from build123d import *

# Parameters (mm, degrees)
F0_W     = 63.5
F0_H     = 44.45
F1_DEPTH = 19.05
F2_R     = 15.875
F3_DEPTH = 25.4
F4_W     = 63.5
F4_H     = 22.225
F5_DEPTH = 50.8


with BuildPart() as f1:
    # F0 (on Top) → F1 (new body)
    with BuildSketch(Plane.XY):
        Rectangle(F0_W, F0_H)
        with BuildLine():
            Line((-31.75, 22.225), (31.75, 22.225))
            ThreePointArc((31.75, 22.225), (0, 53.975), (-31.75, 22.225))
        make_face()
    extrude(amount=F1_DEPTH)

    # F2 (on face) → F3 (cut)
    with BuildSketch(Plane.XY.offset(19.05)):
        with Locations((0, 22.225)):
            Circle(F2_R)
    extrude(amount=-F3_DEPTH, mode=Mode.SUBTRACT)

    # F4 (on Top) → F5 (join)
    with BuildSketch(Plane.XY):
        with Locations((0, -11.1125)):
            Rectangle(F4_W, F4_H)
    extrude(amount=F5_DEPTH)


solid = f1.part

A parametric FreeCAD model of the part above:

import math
import FreeCAD as App
import Part
import Sketcher
from FreeCAD import Vector
Q = App.Units.Quantity

doc = App.newDocument("Part")
body = doc.addObject("PartDesign::Body", "Body")

# Sketch on XY plane
sketch1 = body.newObject("Sketcher::SketchObject", "Sketch")
sketch1.AttachmentSupport = (doc.getObject("XY_Plane"), [""])
sketch1.MapMode = "FlatFace"
sketch1.addGeometry([
    Part.LineSegment(Vector(-32, 22, 0), Vector(-32, -22, 0)),
    Part.LineSegment(Vector(-32, -22, 0), Vector(32, -22, 0)),
    Part.LineSegment(Vector(32, -22, 0), Vector(32, 22, 0)),
    Part.ArcOfCircle(Part.Circle(Vector(0, 22, 0), Vector(0, 0, 1), 32), math.radians(0), math.radians(180)),
], False)
sketch1.addConstraint([
    Sketcher.Constraint("Coincident", 0, 2, 1, 1),
    Sketcher.Constraint("Coincident", 1, 2, 2, 1),
    Sketcher.Constraint("Tangent", 2, 2, 3, 1),
    Sketcher.Constraint("Tangent", 3, 2, 0, 1),
    Sketcher.Constraint("Vertical", 0),
    Sketcher.Constraint("Horizontal", 1),
    Sketcher.Constraint("Vertical", 2),
    Sketcher.Constraint("Symmetric", 0, 2, 2, 2, -1, 1),
    Sketcher.Constraint("Radius", 3, Q("1.25 in")),
    Sketcher.Constraint("DistanceY", 0, 2, 0, 1, Q("1.75 in")),
])
pad1 = body.newObject("PartDesign::Pad", "Pad")
pad1.Profile = sketch1
pad1.Length = Q("0.75 in")

# Sketch on XY plane
sketch2 = body.newObject("Sketcher::SketchObject", "Sketch001")
sketch2.AttachmentSupport = (doc.getObject("XY_Plane"), [""])
sketch2.MapMode = "FlatFace"
sketch2.AttachmentOffset = App.Placement(Vector(0, 0, 0.75 * 25.4), App.Rotation())
sketch2.addGeometry(Part.Circle(Vector(0, 22, 0), Vector(0, 0, 1), 16), False)
sketch2.addConstraint([
    Sketcher.Constraint("PointOnObject", 0, 3, -2),
    Sketcher.Constraint("Diameter", 0, Q("1.25 in")),
    Sketcher.Constraint("DistanceY", -1, 1, 0, 3, Q("0.875 in")),
])
pocket1 = body.newObject("PartDesign::Pocket", "Pocket")
pocket1.Profile = sketch2
pocket1.Length = Q("1 in")

# Sketch on XY plane
sketch3 = body.newObject("Sketcher::SketchObject", "Sketch002")
sketch3.AttachmentSupport = (doc.getObject("XY_Plane"), [""])
sketch3.MapMode = "FlatFace"
sketch3.addGeometry([
    Part.LineSegment(Vector(-32, 0, 0), Vector(-32, -22, 0)),
    Part.LineSegment(Vector(-32, -22, 0), Vector(32, -22, 0)),
    Part.LineSegment(Vector(32, -22, 0), Vector(32, 0, 0)),
    Part.LineSegment(Vector(32, 0, 0), Vector(-32, 0, 0)),
], False)
sketch3.addConstraint([
    Sketcher.Constraint("Coincident", 0, 2, 1, 1),
    Sketcher.Constraint("Coincident", 1, 2, 2, 1),
    Sketcher.Constraint("Coincident", 2, 2, 3, 1),
    Sketcher.Constraint("Coincident", 3, 2, 0, 1),
    Sketcher.Constraint("Vertical", 0),
    Sketcher.Constraint("Horizontal", 1),
    Sketcher.Constraint("Vertical", 2),
    Sketcher.Constraint("Horizontal", 3),
    Sketcher.Constraint("Symmetric", 2, 2, 3, 2, -1, 1),
    Sketcher.Constraint("DistanceX", 1, 1, 1, 2, Q("2.5 in")),
    Sketcher.Constraint("DistanceY", 0, 2, 0, 1, Q("0.875 in")),
])
pad2 = body.newObject("PartDesign::Pad", "Pad001")
pad2.Profile = sketch3
pad2.Length = Q("2 in")

doc.recompute()
